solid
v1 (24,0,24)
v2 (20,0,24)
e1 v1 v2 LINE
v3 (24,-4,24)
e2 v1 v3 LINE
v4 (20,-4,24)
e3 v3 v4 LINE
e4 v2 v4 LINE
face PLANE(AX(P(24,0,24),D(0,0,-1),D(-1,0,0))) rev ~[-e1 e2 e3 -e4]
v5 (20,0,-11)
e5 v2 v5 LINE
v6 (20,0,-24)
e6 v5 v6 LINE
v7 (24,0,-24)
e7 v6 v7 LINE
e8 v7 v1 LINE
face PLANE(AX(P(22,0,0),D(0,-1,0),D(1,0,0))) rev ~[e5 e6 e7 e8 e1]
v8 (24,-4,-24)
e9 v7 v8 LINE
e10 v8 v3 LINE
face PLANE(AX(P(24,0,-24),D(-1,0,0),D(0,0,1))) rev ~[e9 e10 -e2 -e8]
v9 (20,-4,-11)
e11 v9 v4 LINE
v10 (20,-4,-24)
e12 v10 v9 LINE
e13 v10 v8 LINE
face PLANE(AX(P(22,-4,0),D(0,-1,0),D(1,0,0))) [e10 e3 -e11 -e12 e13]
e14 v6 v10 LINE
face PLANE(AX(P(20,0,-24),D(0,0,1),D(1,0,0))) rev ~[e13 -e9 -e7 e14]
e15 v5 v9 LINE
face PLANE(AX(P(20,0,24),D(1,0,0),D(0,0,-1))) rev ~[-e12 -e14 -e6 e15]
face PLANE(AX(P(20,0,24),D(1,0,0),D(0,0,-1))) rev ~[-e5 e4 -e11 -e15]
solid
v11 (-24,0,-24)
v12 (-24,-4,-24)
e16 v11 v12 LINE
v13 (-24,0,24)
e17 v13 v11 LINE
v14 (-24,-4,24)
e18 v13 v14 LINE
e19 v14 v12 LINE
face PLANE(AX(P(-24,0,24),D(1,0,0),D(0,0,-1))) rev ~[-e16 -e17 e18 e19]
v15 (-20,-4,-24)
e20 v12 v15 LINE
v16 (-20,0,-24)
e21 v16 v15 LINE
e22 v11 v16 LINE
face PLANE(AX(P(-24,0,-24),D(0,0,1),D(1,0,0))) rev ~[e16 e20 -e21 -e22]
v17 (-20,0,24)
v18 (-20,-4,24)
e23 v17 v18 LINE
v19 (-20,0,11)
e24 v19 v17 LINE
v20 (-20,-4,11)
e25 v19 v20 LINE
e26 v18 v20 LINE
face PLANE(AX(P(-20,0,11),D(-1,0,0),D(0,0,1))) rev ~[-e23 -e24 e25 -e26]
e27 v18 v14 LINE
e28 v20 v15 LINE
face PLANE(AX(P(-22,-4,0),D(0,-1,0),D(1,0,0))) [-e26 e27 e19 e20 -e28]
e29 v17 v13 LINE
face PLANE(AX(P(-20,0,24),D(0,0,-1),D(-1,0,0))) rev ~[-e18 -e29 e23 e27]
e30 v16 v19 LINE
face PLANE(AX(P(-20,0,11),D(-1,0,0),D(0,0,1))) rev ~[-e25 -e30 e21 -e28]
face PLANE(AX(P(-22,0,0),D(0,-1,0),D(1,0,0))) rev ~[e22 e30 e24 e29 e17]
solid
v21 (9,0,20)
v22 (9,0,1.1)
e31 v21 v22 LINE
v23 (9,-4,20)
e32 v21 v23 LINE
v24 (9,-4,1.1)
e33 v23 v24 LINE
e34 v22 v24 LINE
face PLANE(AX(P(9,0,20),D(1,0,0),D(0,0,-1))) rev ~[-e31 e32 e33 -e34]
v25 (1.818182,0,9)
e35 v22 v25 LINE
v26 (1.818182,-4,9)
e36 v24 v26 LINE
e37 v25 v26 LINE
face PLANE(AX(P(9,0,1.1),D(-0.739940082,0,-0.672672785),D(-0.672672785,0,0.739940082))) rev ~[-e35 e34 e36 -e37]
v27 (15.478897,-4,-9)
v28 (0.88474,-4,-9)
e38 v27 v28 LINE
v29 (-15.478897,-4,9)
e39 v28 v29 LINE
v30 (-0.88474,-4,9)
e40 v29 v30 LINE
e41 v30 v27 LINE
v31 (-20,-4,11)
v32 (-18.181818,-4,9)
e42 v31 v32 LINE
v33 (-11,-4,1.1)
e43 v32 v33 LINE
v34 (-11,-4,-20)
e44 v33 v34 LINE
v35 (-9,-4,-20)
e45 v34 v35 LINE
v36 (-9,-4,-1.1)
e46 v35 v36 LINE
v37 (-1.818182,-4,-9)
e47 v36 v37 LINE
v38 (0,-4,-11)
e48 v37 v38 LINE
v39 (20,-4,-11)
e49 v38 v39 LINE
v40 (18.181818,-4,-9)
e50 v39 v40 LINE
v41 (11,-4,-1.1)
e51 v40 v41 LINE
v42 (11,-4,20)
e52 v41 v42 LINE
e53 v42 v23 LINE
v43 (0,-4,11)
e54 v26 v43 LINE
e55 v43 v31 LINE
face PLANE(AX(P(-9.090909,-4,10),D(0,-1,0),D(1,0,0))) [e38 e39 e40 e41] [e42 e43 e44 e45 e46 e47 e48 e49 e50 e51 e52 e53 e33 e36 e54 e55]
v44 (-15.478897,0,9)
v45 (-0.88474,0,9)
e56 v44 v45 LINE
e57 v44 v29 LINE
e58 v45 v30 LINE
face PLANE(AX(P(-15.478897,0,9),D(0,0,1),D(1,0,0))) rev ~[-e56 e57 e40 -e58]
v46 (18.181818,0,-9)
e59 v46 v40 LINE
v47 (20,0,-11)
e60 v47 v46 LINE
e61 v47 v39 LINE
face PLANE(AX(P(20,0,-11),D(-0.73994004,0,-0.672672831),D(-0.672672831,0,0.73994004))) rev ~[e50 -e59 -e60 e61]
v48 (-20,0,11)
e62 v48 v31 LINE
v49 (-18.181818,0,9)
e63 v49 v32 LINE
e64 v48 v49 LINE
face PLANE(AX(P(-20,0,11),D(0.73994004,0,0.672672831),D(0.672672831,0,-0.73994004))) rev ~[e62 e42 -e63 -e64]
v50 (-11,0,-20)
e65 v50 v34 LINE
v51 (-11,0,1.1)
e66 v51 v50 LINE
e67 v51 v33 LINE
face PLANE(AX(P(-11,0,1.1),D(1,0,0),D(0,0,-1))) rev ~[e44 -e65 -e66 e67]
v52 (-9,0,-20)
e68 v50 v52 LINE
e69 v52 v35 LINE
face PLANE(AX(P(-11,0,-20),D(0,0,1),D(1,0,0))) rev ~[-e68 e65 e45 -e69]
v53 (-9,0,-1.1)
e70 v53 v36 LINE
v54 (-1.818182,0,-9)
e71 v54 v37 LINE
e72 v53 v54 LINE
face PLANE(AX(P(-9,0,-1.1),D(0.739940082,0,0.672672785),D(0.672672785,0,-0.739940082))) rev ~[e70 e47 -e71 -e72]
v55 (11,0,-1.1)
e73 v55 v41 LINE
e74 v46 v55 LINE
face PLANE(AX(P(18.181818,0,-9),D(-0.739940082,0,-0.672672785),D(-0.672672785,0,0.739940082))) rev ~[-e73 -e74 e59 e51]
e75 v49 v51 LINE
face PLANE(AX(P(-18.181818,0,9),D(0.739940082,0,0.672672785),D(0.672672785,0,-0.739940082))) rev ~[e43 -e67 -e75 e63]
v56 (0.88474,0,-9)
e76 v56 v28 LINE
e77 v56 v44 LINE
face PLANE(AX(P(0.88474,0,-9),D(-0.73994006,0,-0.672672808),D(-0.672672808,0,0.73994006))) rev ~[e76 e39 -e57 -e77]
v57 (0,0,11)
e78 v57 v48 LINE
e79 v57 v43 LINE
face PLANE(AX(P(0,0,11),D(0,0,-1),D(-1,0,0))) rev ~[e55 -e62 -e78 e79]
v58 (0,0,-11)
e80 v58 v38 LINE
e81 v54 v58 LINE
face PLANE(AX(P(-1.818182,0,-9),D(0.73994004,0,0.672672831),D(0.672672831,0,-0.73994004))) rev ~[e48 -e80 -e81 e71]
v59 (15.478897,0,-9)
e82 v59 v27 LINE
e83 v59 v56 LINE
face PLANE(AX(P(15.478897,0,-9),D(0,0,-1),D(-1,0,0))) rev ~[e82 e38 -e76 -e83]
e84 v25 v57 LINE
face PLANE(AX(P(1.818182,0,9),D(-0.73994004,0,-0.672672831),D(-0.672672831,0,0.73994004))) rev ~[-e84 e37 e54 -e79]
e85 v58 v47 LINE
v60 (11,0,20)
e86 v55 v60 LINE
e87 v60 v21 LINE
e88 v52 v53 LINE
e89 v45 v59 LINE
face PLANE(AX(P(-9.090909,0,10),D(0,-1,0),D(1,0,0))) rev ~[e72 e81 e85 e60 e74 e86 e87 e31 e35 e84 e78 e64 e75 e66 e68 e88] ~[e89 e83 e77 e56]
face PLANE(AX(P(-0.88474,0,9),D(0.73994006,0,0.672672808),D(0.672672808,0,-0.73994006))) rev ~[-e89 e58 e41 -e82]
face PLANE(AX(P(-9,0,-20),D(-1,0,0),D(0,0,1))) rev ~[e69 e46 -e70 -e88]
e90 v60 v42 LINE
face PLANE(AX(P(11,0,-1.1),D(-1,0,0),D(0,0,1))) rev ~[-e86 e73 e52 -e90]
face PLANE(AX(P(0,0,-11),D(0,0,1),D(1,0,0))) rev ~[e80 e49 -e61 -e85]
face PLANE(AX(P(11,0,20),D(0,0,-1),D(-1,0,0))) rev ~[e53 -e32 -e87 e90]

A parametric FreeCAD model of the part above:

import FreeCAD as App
import Part
import Sketcher
from FreeCAD import Vector

doc = App.newDocument("Part")
body = doc.addObject("PartDesign::Body", "Body")
body.AllowCompound = True

# Sketch on XZ plane
sketch1 = body.newObject("Sketcher::SketchObject", "Sketch")
sketch1.AttachmentSupport = (doc.getObject("XZ_Plane"), [""])
sketch1.MapMode = "FlatFace"
sketch1.addGeometry(Part.LineSegment(Vector(0, 11, 0), Vector(-20, 11, 0)), False)
sketch1.addGeometry(Part.LineSegment(Vector(-20, 11, 0), Vector(-18.181818, 9, 0)), False)
sketch1.addGeometry(Part.LineSegment(Vector(-18.181818, 9, 0), Vector(-11, 1.1, 0)), False)
sketch1.addGeometry(Part.LineSegment(Vector(-11, 1.1, 0), Vector(-11, -20, 0)), False)
sketch1.addGeometry(Part.LineSegment(Vector(-11, -20, 0), Vector(-9, -20, 0)), False)
sketch1.addGeometry(Part.LineSegment(Vector(-9, -20, 0), Vector(-9, -1.1, 0)), False)
sketch1.addGeometry(Part.LineSegment(Vector(-9, -1.1, 0), Vector(-1.818182, -9, 0)), False)
sketch1.addGeometry(Part.LineSegment(Vector(-1.818182, -9, 0), Vector(0, -11, 0)), False)
sketch1.addGeometry(Part.LineSegment(Vector(0, -11, 0), Vector(20, -11, 0)), False)
sketch1.addGeometry(Part.LineSegment(Vector(20, -11, 0), Vector(18.181818, -9, 0)), False)
sketch1.addGeometry(Part.LineSegment(Vector(18.181818, -9, 0), Vector(11, -1.1, 0)), False)
sketch1.addGeometry(Part.LineSegment(Vector(11, -1.1, 0), Vector(11, 20, 0)), False)
sketch1.addGeometry(Part.LineSegment(Vector(11, 20, 0), Vector(9, 20, 0)), False)
sketch1.addGeometry(Part.LineSegment(Vector(9, 20, 0), Vector(9, 1.1, 0)), False)
sketch1.addGeometry(Part.LineSegment(Vector(9, 1.1, 0), Vector(1.818182, 9, 0)), False)
sketch1.addGeometry(Part.LineSegment(Vector(1.818182, 9, 0), Vector(0, 11, 0)), False)
sketch1.addGeometry(Part.LineSegment(Vector(0.88474, -9, 0), Vector(-15.478897, 9, 0)), False)
sketch1.addGeometry(Part.LineSegment(Vector(-15.478897, 9, 0), Vector(-0.88474, 9, 0)), False)
sketch1.addGeometry(Part.LineSegment(Vector(-0.88474, 9, 0), Vector(15.478897, -9, 0)), False)
sketch1.addGeometry(Part.LineSegment(Vector(15.478897, -9, 0), Vector(0.88474, -9, 0)), False)
sketch1.addGeometry(Part.LineSegment(Vector(-20, 11, 0), Vector(-20, 24, 0)), False)
sketch1.addGeometry(Part.LineSegment(Vector(-20, 24, 0), Vector(-24, 24, 0)), False)
sketch1.addGeometry(Part.LineSegment(Vector(-24, 24, 0), Vector(-24, -24, 0)), False)
sketch1.addGeometry(Part.LineSegment(Vector(-24, -24, 0), Vector(-20, -24, 0)), False)
sketch1.addGeometry(Part.LineSegment(Vector(-20, -24, 0), Vector(-20, 11, 0)), False)
sketch1.addGeometry(Part.LineSegment(Vector(24, 24, 0), Vector(20, 24, 0)), False)
sketch1.addGeometry(Part.LineSegment(Vector(20, 24, 0), Vector(20, -11, 0)), False)
sketch1.addGeometry(Part.LineSegment(Vector(20, -11, 0), Vector(20, -24, 0)), False)
sketch1.addGeometry(Part.LineSegment(Vector(20, -24, 0), Vector(24, -24, 0)), False)
sketch1.addGeometry(Part.LineSegment(Vector(24, -24, 0), Vector(24, 24, 0)), False)
sketch1.addConstraint(Sketcher.Constraint("Coincident", 0, 2, 1, 1))
sketch1.addConstraint(Sketcher.Constraint("Coincident", 1, 2, 2, 1))
sketch1.addConstraint(Sketcher.Constraint("Coincident", 2, 2, 3, 1))
sketch1.addConstraint(Sketcher.Constraint("Coincident", 3, 2, 4, 1))
sketch1.addConstraint(Sketcher.Constraint("Coincident", 4, 2, 5, 1))
sketch1.addConstraint(Sketcher.Constraint("Coincident", 5, 2, 6, 1))
sketch1.addConstraint(Sketcher.Constraint("Coincident", 6, 2, 7, 1))
sketch1.addConstraint(Sketcher.Constraint("Coincident", 7, 2, 8, 1))
sketch1.addConstraint(Sketcher.Constraint("Coincident", 8, 2, 9, 1))
sketch1.addConstraint(Sketcher.Constraint("Coincident", 9, 2, 10, 1))
sketch1.addConstraint(Sketcher.Constraint("Coincident", 10, 2, 11, 1))
sketch1.addConstraint(Sketcher.Constraint("Coincident", 11, 2, 12, 1))
sketch1.addConstraint(Sketcher.Constraint("Coincident", 12, 2, 13, 1))
sketch1.addConstraint(Sketcher.Constraint("Coincident", 13, 2, 14, 1))
sketch1.addConstraint(Sketcher.Constraint("Coincident", 14, 2, 15, 1))
sketch1.addConstraint(Sketcher.Constraint("Coincident", 15, 2, 0, 1))
sketch1.addConstraint(Sketcher.Constraint("Coincident", 16, 2, 17, 1))
sketch1.addConstraint(Sketcher.Constraint("Coincident", 17, 2, 18, 1))
sketch1.addConstraint(Sketcher.Constraint("Coincident", 18, 2, 19, 1))
sketch1.addConstraint(Sketcher.Constraint("Coincident", 19, 2, 16, 1))
sketch1.addConstraint(Sketcher.Constraint("Coincident", 20, 2, 21, 1))
sketch1.addConstraint(Sketcher.Constraint("Coincident", 21, 2, 22, 1))
sketch1.addConstraint(Sketcher.Constraint("Coincident", 22, 2, 23, 1))
sketch1.addConstraint(Sketcher.Constraint("Coincident", 23, 2, 24, 1))
sketch1.addConstraint(Sketcher.Constraint("Coincident", 24, 2, 20, 1))
sketch1.addConstraint(Sketcher.Constraint("Coincident", 25, 2, 26, 1))
sketch1.addConstraint(Sketcher.Constraint("Coincident", 26, 2, 27, 1))
sketch1.addConstraint(Sketcher.Constraint("Coincident", 27, 2, 28, 1))
sketch1.addConstraint(Sketcher.Constraint("Coincident", 28, 2, 29, 1))
sketch1.addConstraint(Sketcher.Constraint("Coincident", 29, 2, 25, 1))
sketch1.addConstraint(Sketcher.Constraint("Horizontal", 0))
sketch1.addConstraint(Sketcher.Constraint("Vertical", 3))
sketch1.addConstraint(Sketcher.Constraint("Horizontal", 4))
sketch1.addConstraint(Sketcher.Constraint("Vertical", 5))
sketch1.addConstraint(Sketcher.Constraint("Horizontal", 8))
sketch1.addConstraint(Sketcher.Constraint("Vertical", 11))
sketch1.addConstraint(Sketcher.Constraint("Horizontal", 12))
sketch1.addConstraint(Sketcher.Constraint("Vertical", 13))
sketch1.addConstraint(Sketcher.Constraint("Horizontal", 17))
sketch1.addConstraint(Sketcher.Constraint("Horizontal", 19))
sketch1.addConstraint(Sketcher.Constraint("Vertical", 20))
sketch1.addConstraint(Sketcher.Constraint("Horizontal", 21))
sketch1.addConstraint(Sketcher.Constraint("Vertical", 22))
sketch1.addConstraint(Sketcher.Constraint("Horizontal", 23))
sketch1.addConstraint(Sketcher.Constraint("Vertical", 24))
sketch1.addConstraint(Sketcher.Constraint("Horizontal", 25))
sketch1.addConstraint(Sketcher.Constraint("Vertical", 26))
sketch1.addConstraint(Sketcher.Constraint("Vertical", 27))
sketch1.addConstraint(Sketcher.Constraint("Horizontal", 28))
sketch1.addConstraint(Sketcher.Constraint("Vertical", 29))
sketch1.addConstraint(Sketcher.Constraint("Coincident", 24, 2, 0, 2))
sketch1.addConstraint(Sketcher.Constraint("Coincident", 26, 2, 8, 2))
sketch1.addConstraint(Sketcher.Constraint("Symmetric", 0, 2, 8, 2, -1, 1))
sketch1.addConstraint(Sketcher.Constraint("Symmetric", 1, 2, 9, 2, -1, 1))
sketch1.addConstraint(Sketcher.Constraint("Symmetric", 2, 2, 10, 2, -1, 1))
sketch1.addConstraint(Sketcher.Constraint("Symmetric", 4, 2, 12, 2, -1, 1))
sketch1.addConstraint(Sketcher.Constraint("Symmetric", 6, 2, 14, 2, -1, 1))
sketch1.addConstraint(Sketcher.Constraint("Symmetric", 16, 2, 18, 2, -1, 1))
sketch1.addConstraint(Sketcher.Constraint("Symmetric", 21, 2, 28, 2, -1, 1))
sketch1.addConstraint(Sketcher.Constraint("PointOnObject", 7, 2, -2))
sketch1.addConstraint(Sketcher.Constraint("PointOnObject", 15, 2, -2))
sketch1.addConstraint(Sketcher.Constraint("Parallel", 1, 2))
sketch1.addConstraint(Sketcher.Constraint("Parallel", 2, 6))
sketch1.addConstraint(Sketcher.Constraint("Parallel", 6, 7))
sketch1.addConstraint(Sketcher.Constraint("Parallel", 10, 14))
sketch1.addConstraint(Sketcher.Constraint("Parallel", 15, 16))
sketch1.addConstraint(Sketcher.Constraint("Parallel", 16, 18))
sketch1.addConstraint(Sketcher.Constraint("Horizontal", 6, 2, 9, 2))
sketch1.addConstraint(Sketcher.Constraint("Horizontal", 5, 2, 10, 2))
sketch1.addConstraint(Sketcher.Constraint("Horizontal", 14, 2, 16, 2))
sketch1.addConstraint(Sketcher.Constraint("Horizontal", 21, 2, 25, 2))
sketch1.addConstraint(Sketcher.Constraint("Horizontal", 23, 2, 27, 2))
sketch1.addConstraint(Sketcher.Constraint("DistanceX", 0, 2, 0, 1, 20.0))
sketch1.addConstraint(Sketcher.Constraint("DistanceX", 4, 1, 4, 2, 2.0))
sketch1.addConstraint(Sketcher.Constraint("DistanceX", 21, 2, 21, 1, 4.0))
sketch1.addConstraint(Sketcher.Constraint("DistanceY", 20, 1, 20, 2, 13.0))
sketch1.addConstraint(Sketcher.Constraint("DistanceY", 22, 2, 22, 1, 48.0))
sketch1.addConstraint(Sketcher.Constraint("DistanceY", 3, 2, 3, 1, 21.1))
sketch1.addConstraint(Sketcher.Constraint("DistanceY", 5, 1, 5, 2, 18.9))
sketch1.addConstraint(Sketcher.Constraint("DistanceY", -1, 1, 1, 2, 9.0))
sketch1.addConstraint(Sketcher.Constraint("DistanceX", 17, 1, 17, 2, 14.594157))
pad1 = body.newObject("PartDesign::Pad", "Pad")
pad1.Profile = sketch1
pad1.Length = 4

doc.recompute()
